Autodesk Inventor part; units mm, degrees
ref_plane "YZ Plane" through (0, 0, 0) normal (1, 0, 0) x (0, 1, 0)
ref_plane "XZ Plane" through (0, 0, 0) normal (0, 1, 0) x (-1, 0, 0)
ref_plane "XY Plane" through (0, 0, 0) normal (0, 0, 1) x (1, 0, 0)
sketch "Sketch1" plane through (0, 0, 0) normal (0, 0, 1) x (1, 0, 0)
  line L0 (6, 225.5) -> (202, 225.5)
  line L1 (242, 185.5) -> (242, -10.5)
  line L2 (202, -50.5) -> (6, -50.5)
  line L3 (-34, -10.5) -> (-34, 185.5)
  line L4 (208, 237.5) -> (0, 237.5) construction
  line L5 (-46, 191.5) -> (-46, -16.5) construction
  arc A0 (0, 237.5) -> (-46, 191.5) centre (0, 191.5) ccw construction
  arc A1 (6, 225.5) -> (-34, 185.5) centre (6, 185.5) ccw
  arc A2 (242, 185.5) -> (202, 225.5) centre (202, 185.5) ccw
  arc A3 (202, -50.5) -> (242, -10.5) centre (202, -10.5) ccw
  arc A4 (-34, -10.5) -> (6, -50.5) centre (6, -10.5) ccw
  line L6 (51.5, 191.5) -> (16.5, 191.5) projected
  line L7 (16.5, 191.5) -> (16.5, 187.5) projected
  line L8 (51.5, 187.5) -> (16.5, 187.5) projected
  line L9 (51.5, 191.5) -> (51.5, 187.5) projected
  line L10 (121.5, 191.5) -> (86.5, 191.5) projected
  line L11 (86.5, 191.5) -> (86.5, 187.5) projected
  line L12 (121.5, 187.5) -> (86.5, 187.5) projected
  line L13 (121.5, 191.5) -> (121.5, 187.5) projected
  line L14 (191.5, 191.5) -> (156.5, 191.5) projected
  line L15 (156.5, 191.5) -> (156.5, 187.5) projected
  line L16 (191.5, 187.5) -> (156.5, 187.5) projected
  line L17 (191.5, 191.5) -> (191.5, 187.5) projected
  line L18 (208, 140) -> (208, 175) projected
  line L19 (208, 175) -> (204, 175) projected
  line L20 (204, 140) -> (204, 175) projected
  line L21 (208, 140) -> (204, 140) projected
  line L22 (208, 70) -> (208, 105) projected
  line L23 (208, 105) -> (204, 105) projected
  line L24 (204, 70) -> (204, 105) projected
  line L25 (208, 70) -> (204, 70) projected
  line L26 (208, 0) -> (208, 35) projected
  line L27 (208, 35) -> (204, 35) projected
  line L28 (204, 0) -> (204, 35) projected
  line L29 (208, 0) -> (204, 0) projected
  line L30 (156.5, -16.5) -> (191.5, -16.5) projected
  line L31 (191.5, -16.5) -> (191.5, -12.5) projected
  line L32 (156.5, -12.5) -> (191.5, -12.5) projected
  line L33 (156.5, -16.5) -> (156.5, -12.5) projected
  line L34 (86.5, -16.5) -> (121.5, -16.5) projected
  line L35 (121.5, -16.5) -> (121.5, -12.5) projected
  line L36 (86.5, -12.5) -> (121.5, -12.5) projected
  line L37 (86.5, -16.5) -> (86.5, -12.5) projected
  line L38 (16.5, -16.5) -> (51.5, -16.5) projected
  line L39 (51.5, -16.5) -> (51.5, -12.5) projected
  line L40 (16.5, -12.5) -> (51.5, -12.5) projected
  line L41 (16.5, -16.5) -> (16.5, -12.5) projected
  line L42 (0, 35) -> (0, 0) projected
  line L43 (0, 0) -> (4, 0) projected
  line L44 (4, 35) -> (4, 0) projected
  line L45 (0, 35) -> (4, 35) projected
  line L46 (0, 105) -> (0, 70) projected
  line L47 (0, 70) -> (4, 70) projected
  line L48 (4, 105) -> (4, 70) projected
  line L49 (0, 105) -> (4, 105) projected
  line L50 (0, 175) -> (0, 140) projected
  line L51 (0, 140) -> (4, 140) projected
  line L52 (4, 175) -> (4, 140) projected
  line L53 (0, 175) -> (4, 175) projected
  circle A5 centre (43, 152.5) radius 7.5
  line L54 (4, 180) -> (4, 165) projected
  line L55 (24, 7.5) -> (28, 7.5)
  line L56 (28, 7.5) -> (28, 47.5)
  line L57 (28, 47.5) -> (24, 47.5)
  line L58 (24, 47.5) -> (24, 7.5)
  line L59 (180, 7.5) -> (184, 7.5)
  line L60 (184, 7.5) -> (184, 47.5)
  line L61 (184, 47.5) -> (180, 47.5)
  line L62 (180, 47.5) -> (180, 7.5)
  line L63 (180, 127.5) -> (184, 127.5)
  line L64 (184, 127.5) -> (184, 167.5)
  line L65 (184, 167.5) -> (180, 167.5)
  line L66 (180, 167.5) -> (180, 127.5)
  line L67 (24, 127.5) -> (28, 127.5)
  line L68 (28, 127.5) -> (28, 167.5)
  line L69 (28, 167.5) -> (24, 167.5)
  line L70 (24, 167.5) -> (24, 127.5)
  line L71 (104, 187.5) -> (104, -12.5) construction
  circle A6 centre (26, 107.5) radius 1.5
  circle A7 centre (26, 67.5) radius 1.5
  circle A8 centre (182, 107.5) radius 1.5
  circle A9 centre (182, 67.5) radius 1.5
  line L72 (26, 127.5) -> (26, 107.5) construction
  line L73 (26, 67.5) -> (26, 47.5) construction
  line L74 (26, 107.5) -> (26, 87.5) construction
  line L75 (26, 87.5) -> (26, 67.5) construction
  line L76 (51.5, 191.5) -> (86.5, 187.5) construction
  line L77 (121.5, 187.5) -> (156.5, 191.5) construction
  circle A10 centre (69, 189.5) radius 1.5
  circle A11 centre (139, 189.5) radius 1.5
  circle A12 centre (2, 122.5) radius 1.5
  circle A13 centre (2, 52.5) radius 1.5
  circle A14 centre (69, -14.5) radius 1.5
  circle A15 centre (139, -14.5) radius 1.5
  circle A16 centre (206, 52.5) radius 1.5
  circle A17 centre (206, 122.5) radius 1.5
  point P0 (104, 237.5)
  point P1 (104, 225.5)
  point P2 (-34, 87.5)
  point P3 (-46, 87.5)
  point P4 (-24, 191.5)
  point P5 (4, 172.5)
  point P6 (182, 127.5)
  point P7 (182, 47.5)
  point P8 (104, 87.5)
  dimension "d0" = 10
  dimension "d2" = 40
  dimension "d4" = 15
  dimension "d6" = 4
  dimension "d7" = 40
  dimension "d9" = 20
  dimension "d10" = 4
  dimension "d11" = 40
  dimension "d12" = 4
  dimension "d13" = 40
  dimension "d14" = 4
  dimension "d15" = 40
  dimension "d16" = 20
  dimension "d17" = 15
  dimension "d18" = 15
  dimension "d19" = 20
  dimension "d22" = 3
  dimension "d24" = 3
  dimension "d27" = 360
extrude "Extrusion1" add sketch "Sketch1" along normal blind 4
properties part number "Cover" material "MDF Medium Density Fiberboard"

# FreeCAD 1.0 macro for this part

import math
import FreeCAD as App
import Part
import Sketcher
Q = App.Units.Quantity


def add_polygon(sketch, points):
    """Adds a closed chain of lines whose ends are joined by coincident constraints."""
    first, n = sketch.GeometryCount, len(points)
    for a, b in zip(points, points[1:] + points[:1]):
        sketch.addGeometry(Part.LineSegment(App.Vector(*a, 0), App.Vector(*b, 0)), False)
    for i in range(n):
        sketch.addConstraint(Sketcher.Constraint("Coincident", first + i, 2, first + (i + 1) % n, 1))

doc = App.newDocument("Part")
body = doc.addObject("PartDesign::Body", "Body")

sketch1 = body.newObject("Sketcher::SketchObject", "Sketch")
sketch1.AttachmentSupport = (doc.getObject("XY_Plane"), [""])
sketch1.MapMode = "FlatFace"
sketch1.addGeometry(Part.LineSegment(App.Vector(202, 225.5, 0), App.Vector(6, 225.5, 0)), False)
sketch1.addGeometry(Part.ArcOfCircle(Part.Circle(App.Vector(6, 185.5, 0), App.Vector(0, 0, 1), 40), math.radians(90), math.radians(180)), False)
sketch1.addGeometry(Part.LineSegment(App.Vector(-34, 185.5, 0), App.Vector(-34, -10.5, 0)), False)
sketch1.addGeometry(Part.ArcOfCircle(Part.Circle(App.Vector(6, -10.5, 0), App.Vector(0, 0, 1), 40), math.radians(180), math.radians(270)), False)
sketch1.addGeometry(Part.LineSegment(App.Vector(6, -50.5, 0), App.Vector(202, -50.5, 0)), False)
sketch1.addGeometry(Part.ArcOfCircle(Part.Circle(App.Vector(202, -10.5, 0), App.Vector(0, 0, 1), 40), math.radians(-90), math.radians(0)), False)
sketch1.addGeometry(Part.LineSegment(App.Vector(242, -10.5, 0), App.Vector(242, 185.5, 0)), False)
sketch1.addGeometry(Part.ArcOfCircle(Part.Circle(App.Vector(202, 185.5, 0), App.Vector(0, 0, 1), 40), math.radians(0), math.radians(90)), False)
add_polygon(sketch1, [(51.5, -16.5), (16.5, -16.5), (16.5, -12.5), (51.5, -12.5)])
add_polygon(sketch1, [(0, 0), (0, 35), (4, 35), (4, 0)])
sketch1.addGeometry(Part.Circle(App.Vector(69, -14.5, 0), App.Vector(0, 0, 1), 1.5), False)
add_polygon(sketch1, [(28, 7.5), (24, 7.5), (24, 47.5), (28, 47.5)])
sketch1.addGeometry(Part.Circle(App.Vector(2, 52.5, 0), App.Vector(0, 0, 1), 1.5), False)
sketch1.addGeometry(Part.Circle(App.Vector(26, 67.5, 0), App.Vector(0, 0, 1), 1.5), False)
add_polygon(sketch1, [(121.5, -16.5), (86.5, -16.5), (86.5, -12.5), (121.5, -12.5)])
sketch1.addGeometry(Part.Circle(App.Vector(139, -14.5, 0), App.Vector(0, 0, 1), 1.5), False)
add_polygon(sketch1, [(191.5, -16.5), (156.5, -16.5), (156.5, -12.5), (191.5, -12.5)])
add_polygon(sketch1, [(208, 35), (208, 0), (204, 0), (204, 35)])
add_polygon(sketch1, [(184, 7.5), (180, 7.5), (180, 47.5), (184, 47.5)])
sketch1.addGeometry(Part.Circle(App.Vector(206, 52.5, 0), App.Vector(0, 0, 1), 1.5), False)
sketch1.addGeometry(Part.Circle(App.Vector(182, 67.5, 0), App.Vector(0, 0, 1), 1.5), False)
add_polygon(sketch1, [(0, 70), (0, 105), (4, 105), (4, 70)])
sketch1.addGeometry(Part.Circle(App.Vector(26, 107.5, 0), App.Vector(0, 0, 1), 1.5), False)
sketch1.addGeometry(Part.Circle(App.Vector(2, 122.5, 0), App.Vector(0, 0, 1), 1.5), False)
add_polygon(sketch1, [(28, 127.5), (24, 127.5), (24, 167.5), (28, 167.5)])
sketch1.addGeometry(Part.Circle(App.Vector(43, 152.5, 0), App.Vector(0, 0, 1), 7.5), False)
add_polygon(sketch1, [(0, 140), (0, 175), (4, 175), (4, 140)])
add_polygon(sketch1, [(16.5, 191.5), (51.5, 191.5), (51.5, 187.5), (16.5, 187.5)])
sketch1.addGeometry(Part.Circle(App.Vector(69, 189.5, 0), App.Vector(0, 0, 1), 1.5), False)
add_polygon(sketch1, [(208, 105), (208, 70), (204, 70), (204, 105)])
sketch1.addGeometry(Part.Circle(App.Vector(182, 107.5, 0), App.Vector(0, 0, 1), 1.5), False)
sketch1.addGeometry(Part.Circle(App.Vector(206, 122.5, 0), App.Vector(0, 0, 1), 1.5), False)
add_polygon(sketch1, [(184, 127.5), (180, 127.5), (180, 167.5), (184, 167.5)])
add_polygon(sketch1, [(86.5, 191.5), (121.5, 191.5), (121.5, 187.5), (86.5, 187.5)])
sketch1.addGeometry(Part.Circle(App.Vector(139, 189.5, 0), App.Vector(0, 0, 1), 1.5), False)
add_polygon(sketch1, [(208, 175), (208, 140), (204, 140), (204, 175)])
add_polygon(sketch1, [(156.5, 191.5), (191.5, 191.5), (191.5, 187.5), (156.5, 187.5)])
sketch1.addConstraint(Sketcher.Constraint("Tangent", 0, 2, 1, 1))
sketch1.addConstraint(Sketcher.Constraint("Tangent", 1, 2, 2, 1))
sketch1.addConstraint(Sketcher.Constraint("Tangent", 2, 2, 3, 1))
sketch1.addConstraint(Sketcher.Constraint("Tangent", 3, 2, 4, 1))
sketch1.addConstraint(Sketcher.Constraint("Tangent", 4, 2, 5, 1))
sketch1.addConstraint(Sketcher.Constraint("Tangent", 5, 2, 6, 1))
sketch1.addConstraint(Sketcher.Constraint("Tangent", 6, 2, 7, 1))
sketch1.addConstraint(Sketcher.Constraint("Tangent", 7, 2, 0, 1))
sketch1.addConstraint(Sketcher.Constraint("Horizontal", 0))
sketch1.addConstraint(Sketcher.Constraint("Vertical", 2))
sketch1.addConstraint(Sketcher.Constraint("Horizontal", 4))
sketch1.addConstraint(Sketcher.Constraint("Vertical", 6))
sketch1.addConstraint(Sketcher.Constraint("Horizontal", 8))
sketch1.addConstraint(Sketcher.Constraint("Vertical", 9))
sketch1.addConstraint(Sketcher.Constraint("Horizontal", 10))
sketch1.addConstraint(Sketcher.Constraint("Vertical", 11))
sketch1.addConstraint(Sketcher.Constraint("Vertical", 12))
sketch1.addConstraint(Sketcher.Constraint("Horizontal", 13))
sketch1.addConstraint(Sketcher.Constraint("Vertical", 14))
sketch1.addConstraint(Sketcher.Constraint("Horizontal", 15))
sketch1.addConstraint(Sketcher.Constraint("Horizontal", 17))
sketch1.addConstraint(Sketcher.Constraint("Vertical", 18))
sketch1.addConstraint(Sketcher.Constraint("Horizontal", 19))
sketch1.addConstraint(Sketcher.Constraint("Vertical", 20))
sketch1.addConstraint(Sketcher.Constraint("Horizontal", 23))
sketch1.addConstraint(Sketcher.Constraint("Vertical", 24))
sketch1.addConstraint(Sketcher.Constraint("Horizontal", 25))
sketch1.addConstraint(Sketcher.Constraint("Vertical", 26))
sketch1.addConstraint(Sketcher.Constraint("Horizontal", 28))
sketch1.addConstraint(Sketcher.Constraint("Vertical", 29))
sketch1.addConstraint(Sketcher.Constraint("Horizontal", 30))
sketch1.addConstraint(Sketcher.Constraint("Vertical", 31))
sketch1.addConstraint(Sketcher.Constraint("Vertical", 32))
sketch1.addConstraint(Sketcher.Constraint("Horizontal", 33))
sketch1.addConstraint(Sketcher.Constraint("Vertical", 34))
sketch1.addConstraint(Sketcher.Constraint("Horizontal", 35))
sketch1.addConstraint(Sketcher.Constraint("Horizontal", 36))
sketch1.addConstraint(Sketcher.Constraint("Vertical", 37))
sketch1.addConstraint(Sketcher.Constraint("Horizontal", 38))
sketch1.addConstraint(Sketcher.Constraint("Vertical", 39))
sketch1.addConstraint(Sketcher.Constraint("Vertical", 42))
sketch1.addConstraint(Sketcher.Constraint("Horizontal", 43))
sketch1.addConstraint(Sketcher.Constraint("Vertical", 44))
sketch1.addConstraint(Sketcher.Constraint("Horizontal", 45))
sketch1.addConstraint(Sketcher.Constraint("Horizontal", 48))
sketch1.addConstraint(Sketcher.Constraint("Vertical", 49))
sketch1.addConstraint(Sketcher.Constraint("Horizontal", 50))
sketch1.addConstraint(Sketcher.Constraint("Vertical", 51))
sketch1.addConstraint(Sketcher.Constraint("Vertical", 53))
sketch1.addConstraint(Sketcher.Constraint("Horizontal", 54))
sketch1.addConstraint(Sketcher.Constraint("Vertical", 55))
sketch1.addConstraint(Sketcher.Constraint("Horizontal", 56))
sketch1.addConstraint(Sketcher.Constraint("Horizontal", 57))
sketch1.addConstraint(Sketcher.Constraint("Vertical", 58))
sketch1.addConstraint(Sketcher.Constraint("Horizontal", 59))
sketch1.addConstraint(Sketcher.Constraint("Vertical", 60))
sketch1.addConstraint(Sketcher.Constraint("Vertical", 62))
sketch1.addConstraint(Sketcher.Constraint("Horizontal", 63))
sketch1.addConstraint(Sketcher.Constraint("Vertical", 64))
sketch1.addConstraint(Sketcher.Constraint("Horizontal", 65))
sketch1.addConstraint(Sketcher.Constraint("Horizontal", 68))
sketch1.addConstraint(Sketcher.Constraint("Vertical", 69))
sketch1.addConstraint(Sketcher.Constraint("Horizontal", 70))
sketch1.addConstraint(Sketcher.Constraint("Vertical", 71))
sketch1.addConstraint(Sketcher.Constraint("Horizontal", 72))
sketch1.addConstraint(Sketcher.Constraint("Vertical", 73))
sketch1.addConstraint(Sketcher.Constraint("Horizontal", 74))
sketch1.addConstraint(Sketcher.Constraint("Vertical", 75))
sketch1.addConstraint(Sketcher.Constraint("Vertical", 77))
sketch1.addConstraint(Sketcher.Constraint("Horizontal", 78))
sketch1.addConstraint(Sketcher.Constraint("Vertical", 79))
sketch1.addConstraint(Sketcher.Constraint("Horizontal", 80))
sketch1.addConstraint(Sketcher.Constraint("Horizontal", 81))
sketch1.addConstraint(Sketcher.Constraint("Vertical", 82))
sketch1.addConstraint(Sketcher.Constraint("Horizontal", 83))
sketch1.addConstraint(Sketcher.Constraint("Vertical", 84))
sketch1.addConstraint(Sketcher.Constraint("Coincident", 15, 2, -1, 1))
sketch1.addConstraint(Sketcher.Constraint("Equal", 1, 3))
sketch1.addConstraint(Sketcher.Constraint("Equal", 3, 5))
sketch1.addConstraint(Sketcher.Constraint("Equal", 5, 7))
sketch1.addConstraint(Sketcher.Constraint("Equal", 16, 21))
sketch1.addConstraint(Sketcher.Constraint("Equal", 21, 22))
sketch1.addConstraint(Sketcher.Constraint("Equal", 22, 27))
sketch1.addConstraint(Sketcher.Constraint("Equal", 27, 40))
sketch1.addConstraint(Sketcher.Constraint("Equal", 40, 41))
sketch1.addConstraint(Sketcher.Constraint("Equal", 41, 46))
sketch1.addConstraint(Sketcher.Constraint("Equal", 46, 47))
sketch1.addConstraint(Sketcher.Constraint("Equal", 47, 61))
sketch1.addConstraint(Sketcher.Constraint("Equal", 61, 66))
sketch1.addConstraint(Sketcher.Constraint("Equal", 66, 67))
sketch1.addConstraint(Sketcher.Constraint("Equal", 67, 76))
sketch1.addConstraint(Sketcher.Constraint("PointOnObject", 32, 2, -1))
sketch1.addConstraint(Sketcher.Constraint("PointOnObject", 42, 2, -2))
sketch1.addConstraint(Sketcher.Constraint("PointOnObject", 53, 2, -2))
sketch1.addConstraint(Sketcher.Constraint("Horizontal", 16, 3, 27, 3))
sketch1.addConstraint(Sketcher.Constraint("Horizontal", 21, 3, 40, 3))
sketch1.addConstraint(Sketcher.Constraint("Horizontal", 22, 3, 41, 3))
sketch1.addConstraint(Sketcher.Constraint("Horizontal", 46, 3, 66, 3))
sketch1.addConstraint(Sketcher.Constraint("Horizontal", 47, 3, 67, 3))
sketch1.addConstraint(Sketcher.Constraint("Horizontal", 61, 3, 76, 3))
sketch1.addConstraint(Sketcher.Constraint("Horizontal", 11, 2, 23, 2))
sketch1.addConstraint(Sketcher.Constraint("Horizontal", 10, 2, 24, 2))
sketch1.addConstraint(Sketcher.Constraint("Horizontal", 26, 2, 28, 2))
sketch1.addConstraint(Sketcher.Constraint("Horizontal", 25, 2, 29, 2))
sketch1.addConstraint(Sketcher.Constraint("Horizontal", 13, 2, 34, 2))
sketch1.addConstraint(Sketcher.Constraint("Horizontal", 20, 2, 36, 2))
sketch1.addConstraint(Sketcher.Constraint("Horizontal", 19, 2, 37, 2))
sketch1.addConstraint(Sketcher.Constraint("Horizontal", 45, 2, 62, 2))
sketch1.addConstraint(Sketcher.Constraint("Horizontal", 43, 2, 64, 2))
sketch1.addConstraint(Sketcher.Constraint("Horizontal", 51, 2, 68, 2))
sketch1.addConstraint(Sketcher.Constraint("Horizontal", 50, 2, 69, 2))
sketch1.addConstraint(Sketcher.Constraint("Horizontal", 60, 2, 72, 2))
sketch1.addConstraint(Sketcher.Constraint("Horizontal", 59, 2, 73, 2))
sketch1.addConstraint(Sketcher.Constraint("Horizontal", 56, 2, 77, 2))
sketch1.addConstraint(Sketcher.Constraint("Horizontal", 54, 2, 79, 2))
sketch1.addConstraint(Sketcher.Constraint("Horizontal", 75, 2, 81, 2))
sketch1.addConstraint(Sketcher.Constraint("Horizontal", 74, 2, 82, 2))
sketch1.addConstraint(Sketcher.Constraint("Vertical", 22, 3, 46, 3))
sketch1.addConstraint(Sketcher.Constraint("Vertical", 21, 3, 47, 3))
sketch1.addConstraint(Sketcher.Constraint("Vertical", 16, 3, 61, 3))
sketch1.addConstraint(Sketcher.Constraint("Vertical", 41, 3, 66, 3))
sketch1.addConstraint(Sketcher.Constraint("Vertical", 40, 3, 67, 3))
sketch1.addConstraint(Sketcher.Constraint("Vertical", 27, 3, 76, 3))
sketch1.addConstraint(Sketcher.Constraint("Vertical", 14, 2, 43, 2))
sketch1.addConstraint(Sketcher.Constraint("Vertical", 18, 2, 48, 2))
sketch1.addConstraint(Sketcher.Constraint("Vertical", 20, 2, 50, 2))
sketch1.addConstraint(Sketcher.Constraint("Vertical", 44, 2, 54, 2))
sketch1.addConstraint(Sketcher.Constraint("Vertical", 11, 2, 57, 2))
sketch1.addConstraint(Sketcher.Constraint("Vertical", 9, 2, 59, 2))
sketch1.addConstraint(Sketcher.Constraint("Vertical", 35, 2, 62, 2))
sketch1.addConstraint(Sketcher.Constraint("Vertical", 34, 2, 63, 2))
sketch1.addConstraint(Sketcher.Constraint("Vertical", 37, 2, 68, 2))
sketch1.addConstraint(Sketcher.Constraint("Vertical", 39, 2, 70, 2))
sketch1.addConstraint(Sketcher.Constraint("Vertical", 26, 2, 72, 2))
sketch1.addConstraint(Sketcher.Constraint("Vertical", 24, 2, 74, 2))
sketch1.addConstraint(Sketcher.Constraint("Vertical", 65, 2, 77, 2))
sketch1.addConstraint(Sketcher.Constraint("Vertical", 64, 2, 78, 2))
sketch1.addConstraint(Sketcher.Constraint("Vertical", 31, 2, 81, 2))
sketch1.addConstraint(Sketcher.Constraint("Vertical", 29, 2, 83, 2))
sketch1.addConstraint(Sketcher.Constraint("Equal", 15, 17))
sketch1.addConstraint(Sketcher.Constraint("Equal", 10, 23))
sketch1.addConstraint(Sketcher.Constraint("Equal", 25, 28))
sketch1.addConstraint(Sketcher.Constraint("Equal", 19, 33))
sketch1.addConstraint(Sketcher.Constraint("Equal", 35, 36))
sketch1.addConstraint(Sketcher.Constraint("Equal", 4, 2))
sketch1.addConstraint(Sketcher.Constraint("Equal", 80, 9))
sketch1.addConstraint(Sketcher.Constraint("Equal", 83, 12))
sketch1.addConstraint(Sketcher.Constraint("Equal", 34, 42))
sketch1.addConstraint(Sketcher.Constraint("Equal", 39, 49))
sketch1.addConstraint(Sketcher.Constraint("Equal", 44, 53))
sketch1.addConstraint(Sketcher.Constraint("Equal", 31, 58))
sketch1.addConstraint(Sketcher.Constraint("Diameter", 16, Q("3 mm")))
sketch1.addConstraint(Sketcher.Constraint("Diameter", 52, Q("15 mm")))
sketch1.addConstraint(Sketcher.Constraint("Radius", 1, Q("40 mm")))
sketch1.addConstraint(Sketcher.Constraint("DistanceX", 13, 1, 13, 2, Q("4 mm")))
sketch1.addConstraint(Sketcher.Constraint("DistanceY", 18, 1, 18, 2, Q("40 mm")))
sketch1.addConstraint(Sketcher.Constraint("DistanceX", 0, 2, 0, 1, Q("196 mm")))
sketch1.addConstraint(Sketcher.Constraint("DistanceX", 8, 2, 8, 1, Q("35 mm")))
sketch1.addConstraint(Sketcher.Constraint("DistanceX", -1, 1, 1, 3, Q("6 mm")))
sketch1.addConstraint(Sketcher.Constraint("DistanceX", -1, 1, 16, 3, Q("69 mm")))
sketch1.addConstraint(Sketcher.Constraint("DistanceX", -1, 1, 21, 3, Q("2 mm")))
sketch1.addConstraint(Sketcher.Constraint("DistanceX", -1, 1, 22, 3, Q("26 mm")))
sketch1.addConstraint(Sketcher.Constraint("DistanceX", -1, 1, 27, 3, Q("139 mm")))
sketch1.addConstraint(Sketcher.Constraint("DistanceX", -1, 1, 40, 3, Q("206 mm")))
sketch1.addConstraint(Sketcher.Constraint("DistanceX", -1, 1, 41, 3, Q("182 mm")))
sketch1.addConstraint(Sketcher.Constraint("DistanceX", -1, 1, 52, 3, Q("43 mm")))
sketch1.addConstraint(Sketcher.Constraint("DistanceX", -1, 1, 17, 2, Q("24 mm")))
sketch1.addConstraint(Sketcher.Constraint("DistanceX", -1, 1, 32, 2, Q("208 mm")))
sketch1.addConstraint(Sketcher.Constraint("DistanceX", -1, 1, 36, 2, Q("180 mm")))
sketch1.addConstraint(Sketcher.Constraint("DistanceY", -1, 1, 42, 2, Q("105 mm")))
sketch1.addConstraint(Sketcher.Constraint("DistanceY", -1, 1, 53, 2, Q("175 mm")))
sketch1.addConstraint(Sketcher.Constraint("DistanceY", -1, 1, 1, 3, Q("185.5 mm")))
sketch1.addConstraint(Sketcher.Constraint("DistanceY", 16, 3, -1, 1, Q("14.5 mm")))
sketch1.addConstraint(Sketcher.Constraint("DistanceY", -1, 1, 21, 3, Q("52.5 mm")))
sketch1.addConstraint(Sketcher.Constraint("DistanceY", -1, 1, 22, 3, Q("67.5 mm")))
sketch1.addConstraint(Sketcher.Constraint("DistanceY", -1, 1, 46, 3, Q("107.5 mm")))
sketch1.addConstraint(Sketcher.Constraint("DistanceY", -1, 1, 47, 3, Q("122.5 mm")))
sketch1.addConstraint(Sketcher.Constraint("DistanceY", -1, 1, 52, 3, Q("152.5 mm")))
sketch1.addConstraint(Sketcher.Constraint("DistanceY", -1, 1, 61, 3, Q("189.5 mm")))
sketch1.addConstraint(Sketcher.Constraint("DistanceX", -1, 1, 8, 2, Q("16.5 mm")))
sketch1.addConstraint(Sketcher.Constraint("DistanceY", 8, 2, -1, 1, Q("16.5 mm")))
sketch1.addConstraint(Sketcher.Constraint("DistanceY", -1, 1, 17, 2, Q("7.5 mm")))
sketch1.addConstraint(Sketcher.Constraint("DistanceX", -1, 1, 23, 2, Q("86.5 mm")))
sketch1.addConstraint(Sketcher.Constraint("DistanceX", -1, 1, 28, 2, Q("156.5 mm")))
sketch1.addConstraint(Sketcher.Constraint("DistanceY", -1, 1, 48, 2, Q("127.5 mm")))
sketch1.addConstraint(Sketcher.Constraint("DistanceY", -1, 1, 57, 2, Q("191.5 mm")))
pad1 = body.newObject("PartDesign::Pad", "Pad")
pad1.Profile = sketch1
pad1.Length = 4

doc.recompute()
